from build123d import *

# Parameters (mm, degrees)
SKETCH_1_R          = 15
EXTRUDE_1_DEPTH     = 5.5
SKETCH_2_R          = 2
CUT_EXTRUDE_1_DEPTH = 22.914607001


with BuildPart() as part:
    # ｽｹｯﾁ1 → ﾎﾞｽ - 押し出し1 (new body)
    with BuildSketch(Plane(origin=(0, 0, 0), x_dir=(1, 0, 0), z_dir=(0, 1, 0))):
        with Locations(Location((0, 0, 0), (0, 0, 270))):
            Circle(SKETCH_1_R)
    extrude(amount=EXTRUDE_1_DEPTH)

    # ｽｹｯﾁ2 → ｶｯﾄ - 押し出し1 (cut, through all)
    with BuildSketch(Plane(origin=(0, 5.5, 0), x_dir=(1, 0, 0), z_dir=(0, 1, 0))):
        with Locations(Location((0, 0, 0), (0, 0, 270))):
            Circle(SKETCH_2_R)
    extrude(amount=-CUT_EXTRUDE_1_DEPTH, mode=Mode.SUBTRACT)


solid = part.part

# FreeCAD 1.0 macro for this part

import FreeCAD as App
import Part
import Sketcher

V = App.Vector
Q = App.Units.Quantity

doc = App.newDocument("Part")
body = doc.addObject("PartDesign::Body", "Body")

sketch1 = doc.addObject("Sketcher::SketchObject", "Sketch")
body.addObject(sketch1)
sketch1.AttachmentSupport = (doc.XZ_Plane, [""])
sketch1.MapMode = "FlatFace"
sketch1.addGeometry(Part.Circle(V(0, 0, 0), V(0, 0, 1), 15), False)
sketch1.addConstraint(Sketcher.Constraint("Coincident", 0, 3, -1, 1))
sketch1.addConstraint(Sketcher.Constraint("Diameter", 0, Q("30 mm")))
pad1 = doc.addObject("PartDesign::Pad", "Pad")
body.addObject(pad1)
pad1.Profile = sketch1
pad1.Length = 5.5
pad1.Reversed = True

sketch2 = doc.addObject("Sketcher::SketchObject", "Sketch001")
body.addObject(sketch2)
sketch2.AttachmentSupport = (doc.XZ_Plane, [""])
sketch2.MapMode = "FlatFace"
sketch2.AttachmentOffset = App.Placement(V(0, 0, -5.5), App.Rotation())
sketch2.addGeometry(Part.Circle(V(0, 0, 0), V(0, 0, 1), 2), False)
sketch2.addConstraint(Sketcher.Constraint("Coincident", 0, 3, -1, 1))
sketch2.addConstraint(Sketcher.Constraint("Diameter", 0, Q("4 mm")))
pocket1 = doc.addObject("PartDesign::Pocket", "Pocket")
body.addObject(pocket1)
pocket1.Profile = sketch2
pocket1.Type = "ThroughAll"
pocket1.Reversed = True

doc.recompute()
